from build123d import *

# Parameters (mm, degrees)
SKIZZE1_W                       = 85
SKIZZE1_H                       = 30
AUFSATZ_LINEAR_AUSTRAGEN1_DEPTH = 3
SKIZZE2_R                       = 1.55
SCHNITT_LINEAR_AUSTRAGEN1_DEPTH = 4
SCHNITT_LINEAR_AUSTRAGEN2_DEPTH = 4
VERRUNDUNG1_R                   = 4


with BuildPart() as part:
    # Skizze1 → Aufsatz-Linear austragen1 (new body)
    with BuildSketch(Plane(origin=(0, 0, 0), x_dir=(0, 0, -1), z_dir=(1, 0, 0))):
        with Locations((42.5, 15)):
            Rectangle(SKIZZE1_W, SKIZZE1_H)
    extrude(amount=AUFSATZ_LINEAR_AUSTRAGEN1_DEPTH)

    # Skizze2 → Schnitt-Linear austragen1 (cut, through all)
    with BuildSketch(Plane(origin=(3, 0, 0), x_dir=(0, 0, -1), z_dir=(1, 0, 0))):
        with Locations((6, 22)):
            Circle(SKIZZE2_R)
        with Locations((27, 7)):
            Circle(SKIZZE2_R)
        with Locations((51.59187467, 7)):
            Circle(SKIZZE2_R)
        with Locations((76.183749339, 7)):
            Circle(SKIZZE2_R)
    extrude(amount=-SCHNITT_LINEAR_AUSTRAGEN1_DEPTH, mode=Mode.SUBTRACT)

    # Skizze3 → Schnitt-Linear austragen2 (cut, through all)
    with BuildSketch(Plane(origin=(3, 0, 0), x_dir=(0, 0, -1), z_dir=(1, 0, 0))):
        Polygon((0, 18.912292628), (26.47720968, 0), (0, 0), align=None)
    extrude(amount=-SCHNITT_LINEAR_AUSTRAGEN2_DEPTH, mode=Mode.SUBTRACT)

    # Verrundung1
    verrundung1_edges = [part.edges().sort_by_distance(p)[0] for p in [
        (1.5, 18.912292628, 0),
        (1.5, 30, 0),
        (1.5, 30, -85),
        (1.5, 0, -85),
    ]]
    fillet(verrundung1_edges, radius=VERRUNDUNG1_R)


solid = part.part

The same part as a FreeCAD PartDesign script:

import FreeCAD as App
import Part
import Sketcher


def edges_at(feature, points):
    """Names of the edges that pass closest to the given points."""
    edges = feature.Shape.Edges
    near = lambda p: min(range(len(edges)), key=lambda i: edges[i].distToShape(Part.Vertex(*p))[0])
    return sorted({f"Edge{near(p) + 1}" for p in points})

doc = App.newDocument("Part")
body = doc.addObject("PartDesign::Body", "Body")

# Sketch on YZ plane
sketch1 = doc.addObject("Sketcher::SketchObject", "Sketch")
body.addObject(sketch1)
sketch1.AttachmentSupport = (doc.YZ_Plane, [""])
sketch1.MapMode = "FlatFace"
sketch1.addGeometry(Part.LineSegment(App.Vector(30, 0, 0), App.Vector(0, 0, 0)), False)
sketch1.addGeometry(Part.LineSegment(App.Vector(0, 0, 0), App.Vector(0, -85, 0)), False)
sketch1.addGeometry(Part.LineSegment(App.Vector(0, -85, 0), App.Vector(30, -85, 0)), False)
sketch1.addGeometry(Part.LineSegment(App.Vector(30, -85, 0), App.Vector(30, 0, 0)), False)
sketch1.addConstraint(Sketcher.Constraint("Coincident", 0, 2, 1, 1))
sketch1.addConstraint(Sketcher.Constraint("Coincident", 1, 2, 2, 1))
sketch1.addConstraint(Sketcher.Constraint("Coincident", 2, 2, 3, 1))
sketch1.addConstraint(Sketcher.Constraint("Coincident", 3, 2, 0, 1))
sketch1.addConstraint(Sketcher.Constraint("Horizontal", 0))
sketch1.addConstraint(Sketcher.Constraint("Vertical", 1))
sketch1.addConstraint(Sketcher.Constraint("Horizontal", 2))
sketch1.addConstraint(Sketcher.Constraint("Vertical", 3))
sketch1.addConstraint(Sketcher.Constraint("Coincident", 0, 2, -1, 1))
sketch1.addConstraint(Sketcher.Constraint("DistanceX", 0, 2, 0, 1, 30.0))
sketch1.addConstraint(Sketcher.Constraint("DistanceY", 1, 2, 1, 1, 85.0))
pad1 = doc.addObject("PartDesign::Pad", "Pad")
body.addObject(pad1)
pad1.Profile = sketch1
pad1.Length = 3

# Sketch on YZ plane
sketch2 = doc.addObject("Sketcher::SketchObject", "Sketch001")
body.addObject(sketch2)
sketch2.AttachmentSupport = (doc.YZ_Plane, [""])
sketch2.MapMode = "FlatFace"
sketch2.AttachmentOffset = App.Placement(App.Vector(0, 0, 3), App.Rotation())
sketch2.addGeometry(Part.Circle(App.Vector(22, -6, 0), App.Vector(0, 0, 1), 1.6), False)
sketch2.addGeometry(Part.Circle(App.Vector(7, -27, 0), App.Vector(0, 0, 1), 1.6), False)
sketch2.addGeometry(Part.Circle(App.Vector(7, -51.6, 0), App.Vector(0, 0, 1), 1.6), False)
sketch2.addGeometry(Part.Circle(App.Vector(7, -76.2, 0), App.Vector(0, 0, 1), 1.6), False)
sketch2.addConstraint(Sketcher.Constraint("Equal", 0, 1))
sketch2.addConstraint(Sketcher.Constraint("Equal", 1, 2))
sketch2.addConstraint(Sketcher.Constraint("Equal", 2, 3))
sketch2.addConstraint(Sketcher.Constraint("Vertical", 1, 3, 2, 3))
sketch2.addConstraint(Sketcher.Constraint("Vertical", 2, 3, 3, 3))
sketch2.addConstraint(Sketcher.Constraint("Diameter", 0, 3.1))
sketch2.addConstraint(Sketcher.Constraint("DistanceX", -1, 1, 0, 3, 22.0))
sketch2.addConstraint(Sketcher.Constraint("DistanceY", 0, 3, -1, 1, 6.0))
sketch2.addConstraint(Sketcher.Constraint("DistanceX", -1, 1, 1, 3, 7.0))
sketch2.addConstraint(Sketcher.Constraint("DistanceY", 1, 3, -1, 1, 27.0))
sketch2.addConstraint(Sketcher.Constraint("DistanceY", 3, 3, -1, 1, 76.183749))
sketch2.addConstraint(Sketcher.Constraint("DistanceY", 2, 3, -1, 1, 51.591875))
pocket1 = doc.addObject("PartDesign::Pocket", "Pocket")
body.addObject(pocket1)
pocket1.Profile = sketch2
pocket1.Type = "ThroughAll"

# Sketch on YZ plane
sketch3 = doc.addObject("Sketcher::SketchObject", "Sketch002")
body.addObject(sketch3)
sketch3.AttachmentSupport = (doc.YZ_Plane, [""])
sketch3.MapMode = "FlatFace"
sketch3.AttachmentOffset = App.Placement(App.Vector(0, 0, 3), App.Rotation())
sketch3.addGeometry(Part.LineSegment(App.Vector(0, -26, 0), App.Vector(19, 0, 0)), False)
sketch3.addGeometry(Part.LineSegment(App.Vector(19, 0, 0), App.Vector(0, 0, 0)), False)
sketch3.addGeometry(Part.LineSegment(App.Vector(0, 0, 0), App.Vector(0, -26, 0)), False)
sketch3.addConstraint(Sketcher.Constraint("Coincident", 0, 2, 1, 1))
sketch3.addConstraint(Sketcher.Constraint("Coincident", 1, 2, 2, 1))
sketch3.addConstraint(Sketcher.Constraint("Coincident", 2, 2, 0, 1))
sketch3.addConstraint(Sketcher.Constraint("Horizontal", 1))
sketch3.addConstraint(Sketcher.Constraint("Vertical", 2))
sketch3.addConstraint(Sketcher.Constraint("Coincident", 1, 2, -1, 1))
sketch3.addConstraint(Sketcher.Constraint("DistanceY", 2, 2, 2, 1, 26.47721))
sketch3.addConstraint(Sketcher.Constraint("Distance", 0, 32.537939))
pocket2 = doc.addObject("PartDesign::Pocket", "Pocket001")
body.addObject(pocket2)
pocket2.Profile = sketch3
pocket2.Type = "ThroughAll"
doc.recompute()

fillet = doc.addObject("PartDesign::Fillet", "Fillet")
body.addObject(fillet)
fillet.Base = (pocket2, edges_at(pocket2, [
    (1.5, 18.912, 0),
    (1.5, 30, 0),
    (1.5, 30, -85),
    (1.5, 0, -85),
]))
fillet.Radius = 4

doc.recompute()
